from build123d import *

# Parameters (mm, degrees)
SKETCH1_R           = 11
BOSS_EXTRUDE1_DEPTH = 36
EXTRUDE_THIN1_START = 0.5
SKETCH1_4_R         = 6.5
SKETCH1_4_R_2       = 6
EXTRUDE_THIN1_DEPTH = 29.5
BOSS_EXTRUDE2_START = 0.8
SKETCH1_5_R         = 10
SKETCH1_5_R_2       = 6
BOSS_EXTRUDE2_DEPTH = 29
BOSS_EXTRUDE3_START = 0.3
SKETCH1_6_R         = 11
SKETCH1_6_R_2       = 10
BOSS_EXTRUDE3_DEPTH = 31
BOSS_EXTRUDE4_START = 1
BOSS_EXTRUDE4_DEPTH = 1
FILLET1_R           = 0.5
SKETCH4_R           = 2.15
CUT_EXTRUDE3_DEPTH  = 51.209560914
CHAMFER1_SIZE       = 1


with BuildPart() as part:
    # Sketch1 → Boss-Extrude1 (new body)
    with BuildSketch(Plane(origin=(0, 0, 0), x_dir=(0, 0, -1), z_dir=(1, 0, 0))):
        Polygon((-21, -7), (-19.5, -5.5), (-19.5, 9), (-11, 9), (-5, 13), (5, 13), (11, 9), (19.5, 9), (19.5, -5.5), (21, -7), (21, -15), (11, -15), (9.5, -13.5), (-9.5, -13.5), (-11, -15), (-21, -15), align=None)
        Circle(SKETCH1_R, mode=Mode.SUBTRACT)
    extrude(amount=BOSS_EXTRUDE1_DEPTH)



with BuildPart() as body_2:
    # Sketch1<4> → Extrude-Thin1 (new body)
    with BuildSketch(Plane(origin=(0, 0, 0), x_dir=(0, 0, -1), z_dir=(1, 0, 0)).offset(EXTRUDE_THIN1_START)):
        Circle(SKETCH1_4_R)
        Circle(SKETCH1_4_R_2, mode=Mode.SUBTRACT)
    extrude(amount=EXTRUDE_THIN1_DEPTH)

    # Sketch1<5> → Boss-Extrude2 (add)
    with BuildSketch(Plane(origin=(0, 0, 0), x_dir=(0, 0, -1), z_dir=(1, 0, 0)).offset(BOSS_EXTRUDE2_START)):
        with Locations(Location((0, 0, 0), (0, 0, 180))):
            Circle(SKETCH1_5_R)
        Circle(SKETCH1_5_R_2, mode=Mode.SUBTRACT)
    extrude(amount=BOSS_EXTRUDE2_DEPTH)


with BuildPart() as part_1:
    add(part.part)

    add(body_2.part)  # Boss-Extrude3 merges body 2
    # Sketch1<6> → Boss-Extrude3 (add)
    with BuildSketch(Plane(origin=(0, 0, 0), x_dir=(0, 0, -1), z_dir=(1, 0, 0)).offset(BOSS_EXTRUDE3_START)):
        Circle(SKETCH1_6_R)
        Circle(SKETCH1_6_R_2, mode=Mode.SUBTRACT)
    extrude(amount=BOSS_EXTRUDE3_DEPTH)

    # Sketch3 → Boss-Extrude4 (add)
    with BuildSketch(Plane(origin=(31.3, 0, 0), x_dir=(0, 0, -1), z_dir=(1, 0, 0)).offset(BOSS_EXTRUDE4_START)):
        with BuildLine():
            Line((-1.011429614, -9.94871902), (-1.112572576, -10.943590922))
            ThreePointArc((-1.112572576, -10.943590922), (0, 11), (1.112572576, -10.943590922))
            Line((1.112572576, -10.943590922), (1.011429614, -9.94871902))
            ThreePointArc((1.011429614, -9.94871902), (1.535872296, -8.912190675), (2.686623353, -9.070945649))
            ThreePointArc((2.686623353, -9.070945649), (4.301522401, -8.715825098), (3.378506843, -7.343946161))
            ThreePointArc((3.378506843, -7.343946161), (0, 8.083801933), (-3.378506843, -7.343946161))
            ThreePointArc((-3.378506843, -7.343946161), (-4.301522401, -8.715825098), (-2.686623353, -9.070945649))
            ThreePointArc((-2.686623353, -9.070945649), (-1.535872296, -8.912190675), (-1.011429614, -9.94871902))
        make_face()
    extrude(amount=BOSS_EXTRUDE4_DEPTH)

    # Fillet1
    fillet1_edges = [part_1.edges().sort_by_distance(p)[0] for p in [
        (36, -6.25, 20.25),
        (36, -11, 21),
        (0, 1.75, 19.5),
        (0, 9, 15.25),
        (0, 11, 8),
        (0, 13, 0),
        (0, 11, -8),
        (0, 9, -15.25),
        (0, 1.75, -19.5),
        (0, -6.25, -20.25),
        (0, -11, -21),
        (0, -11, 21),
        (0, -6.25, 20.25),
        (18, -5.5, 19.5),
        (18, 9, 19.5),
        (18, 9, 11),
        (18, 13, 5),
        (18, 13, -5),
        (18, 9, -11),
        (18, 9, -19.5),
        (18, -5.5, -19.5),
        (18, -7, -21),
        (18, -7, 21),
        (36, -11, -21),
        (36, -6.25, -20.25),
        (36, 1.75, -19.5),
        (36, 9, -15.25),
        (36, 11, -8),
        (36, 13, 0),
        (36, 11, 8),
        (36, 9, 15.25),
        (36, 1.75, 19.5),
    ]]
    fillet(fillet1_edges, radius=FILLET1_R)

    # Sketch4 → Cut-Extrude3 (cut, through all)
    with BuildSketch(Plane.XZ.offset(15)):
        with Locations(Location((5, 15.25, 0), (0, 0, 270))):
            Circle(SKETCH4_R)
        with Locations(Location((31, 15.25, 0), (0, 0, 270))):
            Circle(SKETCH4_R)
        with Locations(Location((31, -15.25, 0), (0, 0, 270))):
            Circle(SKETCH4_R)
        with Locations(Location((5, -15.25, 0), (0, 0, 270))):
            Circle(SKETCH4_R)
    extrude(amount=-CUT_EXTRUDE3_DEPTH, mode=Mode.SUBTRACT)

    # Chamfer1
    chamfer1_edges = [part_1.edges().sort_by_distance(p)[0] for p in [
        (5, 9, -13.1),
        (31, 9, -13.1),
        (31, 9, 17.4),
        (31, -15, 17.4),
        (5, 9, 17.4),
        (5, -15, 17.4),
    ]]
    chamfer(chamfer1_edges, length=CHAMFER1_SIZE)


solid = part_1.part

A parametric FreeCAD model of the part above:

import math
import FreeCAD as App
import Part
import Sketcher
from FreeCAD import Vector


def edges_at(feature, points):
    """Names of the edges that pass closest to the given points."""
    edges = feature.Shape.Edges
    near = lambda p: min(range(len(edges)), key=lambda i: edges[i].distToShape(Part.Vertex(*p))[0])
    return sorted({f"Edge{near(p) + 1}" for p in points})


def add_polygon(sketch, points):
    """Adds a closed chain of lines whose ends are joined by coincident constraints."""
    first, n = sketch.GeometryCount, len(points)
    for a, b in zip(points, points[1:] + points[:1]):
        sketch.addGeometry(Part.LineSegment(App.Vector(*a, 0), App.Vector(*b, 0)), False)
    for i in range(n):
        sketch.addConstraint(Sketcher.Constraint("Coincident", first + i, 2, first + (i + 1) % n, 1))

doc = App.newDocument("Part")
body = doc.addObject("PartDesign::Body", "Body")

sketch1 = doc.addObject("Sketcher::SketchObject", "Sketch")
body.addObject(sketch1)
sketch1.AttachmentSupport = (doc.YZ_Plane, [""])
sketch1.MapMode = "FlatFace"
add_polygon(sketch1, [(-5.5, 19.5), (-7, 21), (-15, 21), (-15, 11), (-13.5, 9.5), (-13.5, -9.5), (-15, -11), (-15, -21), (-7, -21), (-5.5, -19.5), (9, -19.5), (9, -11), (13, -5), (13, 5), (9, 11), (9, 19.5)])
sketch1.addGeometry(Part.Circle(Vector(0, 0, 0), Vector(0, 0, 1), 11), False)
sketch1.addConstraint([
    Sketcher.Constraint("Horizontal", 1),
    Sketcher.Constraint("Vertical", 2),
    Sketcher.Constraint("Vertical", 4),
    Sketcher.Constraint("Vertical", 6),
    Sketcher.Constraint("Horizontal", 7),
    Sketcher.Constraint("Horizontal", 9),
    Sketcher.Constraint("Vertical", 10),
    Sketcher.Constraint("Vertical", 12),
    Sketcher.Constraint("Vertical", 14),
    Sketcher.Constraint("Horizontal", 15),
    Sketcher.Constraint("Coincident", 16, 3, -1, 1),
    Sketcher.Constraint("Symmetric", 2, 2, 5, 2, -1),
    Sketcher.Constraint("Symmetric", 0, 2, 7, 2, -1),
    Sketcher.Constraint("Symmetric", 10, 2, 13, 2, -1),
    Sketcher.Constraint("Symmetric", 8, 2, 15, 2, -1),
    Sketcher.Constraint("Parallel", 0, 3),
    Sketcher.Constraint("Perpendicular", 3, 5),
    Sketcher.Constraint("Parallel", 5, 8),
    Sketcher.Constraint("Horizontal", 5, 2, 10, 2),
    Sketcher.Constraint("Equal", 6, 12),
    Sketcher.Constraint("Equal", 0, 3),
    Sketcher.Constraint("Equal", 11, 13),
    Sketcher.Constraint("Diameter", 16, 22.0),
    Sketcher.Constraint("DistanceX", 1, 2, 1, 1, 8.0),
    Sketcher.Constraint("DistanceY", 2, 2, 2, 1, 10.0),
    Sketcher.Constraint("DistanceY", 4, 2, 4, 1, 19.0),
    Sketcher.Constraint("DistanceX", 9, 1, 9, 2, 14.5),
    Sketcher.Constraint("DistanceY", 10, 1, 10, 2, 8.5),
    Sketcher.Constraint("DistanceX", 0, 2, -1, 1, 7.0),
    Sketcher.Constraint("DistanceX", -1, 1, 11, 2, 13.0),
])
pad1 = doc.addObject("PartDesign::Pad", "Pad")
body.addObject(pad1)
pad1.Profile = sketch1
pad1.Length = 36
body2 = doc.addObject("PartDesign::Body", "Body001")

sketch2 = doc.addObject("Sketcher::SketchObject", "Sketch001")
body2.addObject(sketch2)
sketch2.AttachmentSupport = (doc.getObject("YZ_Plane001"), [""])
sketch2.MapMode = "FlatFace"
sketch2.AttachmentOffset = App.Placement(Vector(0, 0, 0.5), App.Rotation())
sketch2.addGeometry([
    Part.Circle(Vector(0, 0, 0), Vector(0, 0, 1), 6),
    Part.Circle(Vector(0, 0, 0), Vector(0, 0, 1), 6),
], False)
sketch2.addConstraint([
    Sketcher.Constraint("Coincident", 0, 3, -1, 1),
    Sketcher.Constraint("Coincident", 1, 3, -1, 1),
    Sketcher.Constraint("Diameter", 0, 13.0),
    Sketcher.Constraint("Diameter", 1, 12.0),
])
pad2 = doc.addObject("PartDesign::Pad", "Pad001")
body2.addObject(pad2)
pad2.Profile = sketch2
pad2.Length = 29.5

sketch3 = doc.addObject("Sketcher::SketchObject", "Sketch002")
body2.addObject(sketch3)
sketch3.AttachmentSupport = (doc.getObject("YZ_Plane001"), [""])
sketch3.MapMode = "FlatFace"
sketch3.AttachmentOffset = App.Placement(Vector(0, 0, 0.8), App.Rotation())
sketch3.addGeometry([
    Part.Circle(Vector(0, 0, 0), Vector(0, 0, 1), 10),
    Part.Circle(Vector(0, 0, 0), Vector(0, 0, 1), 6),
], False)
sketch3.addConstraint([
    Sketcher.Constraint("Coincident", 0, 3, -1, 1),
    Sketcher.Constraint("Coincident", 1, 3, -1, 1),
    Sketcher.Constraint("Diameter", 0, 20.0),
    Sketcher.Constraint("Diameter", 1, 12.0),
])
pad3 = doc.addObject("PartDesign::Pad", "Pad002")
body2.addObject(pad3)
pad3.Profile = sketch3
pad3.Length = 29
body.AllowCompound = True
doc.recompute()

boolean = doc.addObject("PartDesign::Boolean", "Boolean")
body.addObject(boolean)
boolean.Type = "Fuse"
boolean.addObjects([body2])

sketch4 = doc.addObject("Sketcher::SketchObject", "Sketch003")
body.addObject(sketch4)
sketch4.AttachmentSupport = (doc.YZ_Plane, [""])
sketch4.MapMode = "FlatFace"
sketch4.AttachmentOffset = App.Placement(Vector(0, 0, 0.3), App.Rotation())
sketch4.addGeometry([
    Part.Circle(Vector(0, 0, 0), Vector(0, 0, 1), 11),
    Part.Circle(Vector(0, 0, 0), Vector(0, 0, 1), 10),
], False)
sketch4.addConstraint([
    Sketcher.Constraint("Coincident", 0, 3, -1, 1),
    Sketcher.Constraint("Coincident", 1, 3, -1, 1),
    Sketcher.Constraint("Diameter", 0, 22.0),
    Sketcher.Constraint("Diameter", 1, 20.0),
])
pad4 = doc.addObject("PartDesign::Pad", "Pad003")
body.addObject(pad4)
pad4.Profile = sketch4
pad4.Length = 31

sketch5 = doc.addObject("Sketcher::SketchObject", "Sketch004")
body.addObject(sketch5)
sketch5.AttachmentSupport = (doc.YZ_Plane, [""])
sketch5.MapMode = "FlatFace"
sketch5.AttachmentOffset = App.Placement(Vector(0, 0, 32.3), App.Rotation())
sketch5.addGeometry([
    Part.LineSegment(Vector(-10.9, 1.1, 0), Vector(-9.9, 1, 0)),
    Part.ArcOfCircle(Part.Circle(Vector(-9.8, 2, 0), Vector(0, 0, 1), 1), math.radians(-99), math.radians(43)),
    Part.ArcOfCircle(Part.Circle(Vector(-8.3, 3.4, 0), Vector(0, 0, 1), 1), math.radians(0), math.radians(223)),
    Part.ArcOfCircle(Part.Circle(Vector(0, 0, 0), Vector(0, 0, 1), 8.1), math.radians(-155), math.radians(155)),
    Part.ArcOfCircle(Part.Circle(Vector(-8.3, -3.4, 0), Vector(0, 0, 1), 1), math.radians(137), math.radians(360)),
    Part.ArcOfCircle(Part.Circle(Vector(-9.8, -2, 0), Vector(0, 0, 1), 1), math.radians(-43), math.radians(99)),
    Part.LineSegment(Vector(-9.9, -1, 0), Vector(-10.9, -1.1, 0)),
    Part.ArcOfCircle(Part.Circle(Vector(0, 0, 0), Vector(0, 0, 1), 11), math.radians(-174), math.radians(174)),
], False)
sketch5.addConstraint([
    Sketcher.Constraint("Coincident", 0, 2, 1, 1),
    Sketcher.Constraint("Tangent", 1, 2, 2, 2),
    Sketcher.Constraint("Coincident", 2, 1, 3, 2),
    Sketcher.Constraint("Coincident", 3, 1, 4, 2),
    Sketcher.Constraint("Tangent", 4, 1, 5, 1),
    Sketcher.Constraint("Coincident", 5, 2, 6, 1),
    Sketcher.Constraint("Coincident", 6, 2, 7, 1),
    Sketcher.Constraint("Coincident", 7, 2, 0, 1),
    Sketcher.Constraint("Coincident", 3, 3, -1, 1),
    Sketcher.Constraint("Coincident", 7, 3, -1, 1),
    Sketcher.Constraint("Equal", 1, 2),
    Sketcher.Constraint("Equal", 2, 4),
    Sketcher.Constraint("Equal", 4, 5),
    Sketcher.Constraint("Symmetric", 2, 3, 4, 3, -1),
    Sketcher.Constraint("Symmetric", 0, 2, 5, 2, -1),
    Sketcher.Constraint("Vertical", 6, 2, 7, 2),
    Sketcher.Constraint("Radius", 1, 1.0),
    Sketcher.Constraint("Radius", 7, 11.0),
    Sketcher.Constraint("Distance", 0, 1.0),
    Sketcher.Constraint("DistanceY", -1, 1, 1, 3, 2.0),
    Sketcher.Constraint("Radius", 3, 8.083802),
    Sketcher.Constraint("DistanceX", 1, 2, 2, 1, 1.726999),
    Sketcher.Constraint("DistanceX", 1, 3, -1, 1, 9.797959),
    Sketcher.Constraint("DistanceX", 6, 2, -1, 1, 10.943591),
])
pad5 = doc.addObject("PartDesign::Pad", "Pad004")
body.addObject(pad5)
pad5.Profile = sketch5
pad5.Length = 1
doc.recompute()

fillet = doc.addObject("PartDesign::Fillet", "Fillet")
body.addObject(fillet)
fillet.Base = (pad5, edges_at(pad5, [
    (36, -6.25, 20.25),
    (36, -11, 21),
    (0, 1.75, 19.5),
    (0, 9, 15.25),
    (0, 11, 8),
    (0, 13, 0),
    (0, 11, -8),
    (0, 9, -15.25),
    (0, 1.75, -19.5),
    (0, -6.25, -20.25),
    (0, -11, -21),
    (0, -11, 21),
    (0, -6.25, 20.25),
    (18, -5.5, 19.5),
    (18, 9, 19.5),
    (18, 9, 11),
    (18, 13, 5),
    (18, 13, -5),
    (18, 9, -11),
    (18, 9, -19.5),
    (18, -5.5, -19.5),
    (18, -7, -21),
    (18, -7, 21),
    (36, -11, -21),
    (36, -6.25, -20.25),
    (36, 1.75, -19.5),
    (36, 9, -15.25),
    (36, 11, -8),
    (36, 13, 0),
    (36, 11, 8),
    (36, 9, 15.25),
    (36, 1.75, 19.5),
]))
fillet.Radius = 0.5

sketch6 = doc.addObject("Sketcher::SketchObject", "Sketch005")
body.addObject(sketch6)
sketch6.AttachmentSupport = (doc.XZ_Plane, [""])
sketch6.MapMode = "FlatFace"
sketch6.AttachmentOffset = App.Placement(Vector(0, 0, 15), App.Rotation())
sketch6.addGeometry([
    Part.Circle(Vector(5, 15.2, 0), Vector(0, 0, 1), 2.1),
    Part.Circle(Vector(31, 15.2, 0), Vector(0, 0, 1), 2.1),
    Part.Circle(Vector(31, -15.2, 0), Vector(0, 0, 1), 2.1),
    Part.Circle(Vector(5, -15.2, 0), Vector(0, 0, 1), 2.1),
], False)
sketch6.addConstraint([
    Sketcher.Constraint("Equal", 0, 1),
    Sketcher.Constraint("Equal", 1, 2),
    Sketcher.Constraint("Equal", 2, 3),
    Sketcher.Constraint("Symmetric", 1, 3, 2, 3, -1),
    Sketcher.Constraint("Symmetric", 0, 3, 3, 3, -1),
    Sketcher.Constraint("Horizontal", 0, 3, 1, 3),
    Sketcher.Constraint("Diameter", 0, 4.3),
    Sketcher.Constraint("DistanceX", -1, 1, 0, 3, 5.0),
    Sketcher.Constraint("DistanceX", -1, 1, 1, 3, 31.0),
    Sketcher.Constraint("DistanceY", 2, 3, 1, 3, 30.5),
])
pocket1 = doc.addObject("PartDesign::Pocket", "Pocket")
body.addObject(pocket1)
pocket1.Profile = sketch6
pocket1.Type = "ThroughAll"
doc.recompute()

chamfer = doc.addObject("PartDesign::Chamfer", "Chamfer")
body.addObject(chamfer)
chamfer.Base = (pocket1, edges_at(pocket1, [
    (5, 9, -13.1),
    (31, 9, -13.1),
    (31, 9, 17.4),
    (31, -15, 17.4),
    (5, 9, 17.4),
    (5, -15, 17.4),
]))
chamfer.Size = 1

doc.recompute()
